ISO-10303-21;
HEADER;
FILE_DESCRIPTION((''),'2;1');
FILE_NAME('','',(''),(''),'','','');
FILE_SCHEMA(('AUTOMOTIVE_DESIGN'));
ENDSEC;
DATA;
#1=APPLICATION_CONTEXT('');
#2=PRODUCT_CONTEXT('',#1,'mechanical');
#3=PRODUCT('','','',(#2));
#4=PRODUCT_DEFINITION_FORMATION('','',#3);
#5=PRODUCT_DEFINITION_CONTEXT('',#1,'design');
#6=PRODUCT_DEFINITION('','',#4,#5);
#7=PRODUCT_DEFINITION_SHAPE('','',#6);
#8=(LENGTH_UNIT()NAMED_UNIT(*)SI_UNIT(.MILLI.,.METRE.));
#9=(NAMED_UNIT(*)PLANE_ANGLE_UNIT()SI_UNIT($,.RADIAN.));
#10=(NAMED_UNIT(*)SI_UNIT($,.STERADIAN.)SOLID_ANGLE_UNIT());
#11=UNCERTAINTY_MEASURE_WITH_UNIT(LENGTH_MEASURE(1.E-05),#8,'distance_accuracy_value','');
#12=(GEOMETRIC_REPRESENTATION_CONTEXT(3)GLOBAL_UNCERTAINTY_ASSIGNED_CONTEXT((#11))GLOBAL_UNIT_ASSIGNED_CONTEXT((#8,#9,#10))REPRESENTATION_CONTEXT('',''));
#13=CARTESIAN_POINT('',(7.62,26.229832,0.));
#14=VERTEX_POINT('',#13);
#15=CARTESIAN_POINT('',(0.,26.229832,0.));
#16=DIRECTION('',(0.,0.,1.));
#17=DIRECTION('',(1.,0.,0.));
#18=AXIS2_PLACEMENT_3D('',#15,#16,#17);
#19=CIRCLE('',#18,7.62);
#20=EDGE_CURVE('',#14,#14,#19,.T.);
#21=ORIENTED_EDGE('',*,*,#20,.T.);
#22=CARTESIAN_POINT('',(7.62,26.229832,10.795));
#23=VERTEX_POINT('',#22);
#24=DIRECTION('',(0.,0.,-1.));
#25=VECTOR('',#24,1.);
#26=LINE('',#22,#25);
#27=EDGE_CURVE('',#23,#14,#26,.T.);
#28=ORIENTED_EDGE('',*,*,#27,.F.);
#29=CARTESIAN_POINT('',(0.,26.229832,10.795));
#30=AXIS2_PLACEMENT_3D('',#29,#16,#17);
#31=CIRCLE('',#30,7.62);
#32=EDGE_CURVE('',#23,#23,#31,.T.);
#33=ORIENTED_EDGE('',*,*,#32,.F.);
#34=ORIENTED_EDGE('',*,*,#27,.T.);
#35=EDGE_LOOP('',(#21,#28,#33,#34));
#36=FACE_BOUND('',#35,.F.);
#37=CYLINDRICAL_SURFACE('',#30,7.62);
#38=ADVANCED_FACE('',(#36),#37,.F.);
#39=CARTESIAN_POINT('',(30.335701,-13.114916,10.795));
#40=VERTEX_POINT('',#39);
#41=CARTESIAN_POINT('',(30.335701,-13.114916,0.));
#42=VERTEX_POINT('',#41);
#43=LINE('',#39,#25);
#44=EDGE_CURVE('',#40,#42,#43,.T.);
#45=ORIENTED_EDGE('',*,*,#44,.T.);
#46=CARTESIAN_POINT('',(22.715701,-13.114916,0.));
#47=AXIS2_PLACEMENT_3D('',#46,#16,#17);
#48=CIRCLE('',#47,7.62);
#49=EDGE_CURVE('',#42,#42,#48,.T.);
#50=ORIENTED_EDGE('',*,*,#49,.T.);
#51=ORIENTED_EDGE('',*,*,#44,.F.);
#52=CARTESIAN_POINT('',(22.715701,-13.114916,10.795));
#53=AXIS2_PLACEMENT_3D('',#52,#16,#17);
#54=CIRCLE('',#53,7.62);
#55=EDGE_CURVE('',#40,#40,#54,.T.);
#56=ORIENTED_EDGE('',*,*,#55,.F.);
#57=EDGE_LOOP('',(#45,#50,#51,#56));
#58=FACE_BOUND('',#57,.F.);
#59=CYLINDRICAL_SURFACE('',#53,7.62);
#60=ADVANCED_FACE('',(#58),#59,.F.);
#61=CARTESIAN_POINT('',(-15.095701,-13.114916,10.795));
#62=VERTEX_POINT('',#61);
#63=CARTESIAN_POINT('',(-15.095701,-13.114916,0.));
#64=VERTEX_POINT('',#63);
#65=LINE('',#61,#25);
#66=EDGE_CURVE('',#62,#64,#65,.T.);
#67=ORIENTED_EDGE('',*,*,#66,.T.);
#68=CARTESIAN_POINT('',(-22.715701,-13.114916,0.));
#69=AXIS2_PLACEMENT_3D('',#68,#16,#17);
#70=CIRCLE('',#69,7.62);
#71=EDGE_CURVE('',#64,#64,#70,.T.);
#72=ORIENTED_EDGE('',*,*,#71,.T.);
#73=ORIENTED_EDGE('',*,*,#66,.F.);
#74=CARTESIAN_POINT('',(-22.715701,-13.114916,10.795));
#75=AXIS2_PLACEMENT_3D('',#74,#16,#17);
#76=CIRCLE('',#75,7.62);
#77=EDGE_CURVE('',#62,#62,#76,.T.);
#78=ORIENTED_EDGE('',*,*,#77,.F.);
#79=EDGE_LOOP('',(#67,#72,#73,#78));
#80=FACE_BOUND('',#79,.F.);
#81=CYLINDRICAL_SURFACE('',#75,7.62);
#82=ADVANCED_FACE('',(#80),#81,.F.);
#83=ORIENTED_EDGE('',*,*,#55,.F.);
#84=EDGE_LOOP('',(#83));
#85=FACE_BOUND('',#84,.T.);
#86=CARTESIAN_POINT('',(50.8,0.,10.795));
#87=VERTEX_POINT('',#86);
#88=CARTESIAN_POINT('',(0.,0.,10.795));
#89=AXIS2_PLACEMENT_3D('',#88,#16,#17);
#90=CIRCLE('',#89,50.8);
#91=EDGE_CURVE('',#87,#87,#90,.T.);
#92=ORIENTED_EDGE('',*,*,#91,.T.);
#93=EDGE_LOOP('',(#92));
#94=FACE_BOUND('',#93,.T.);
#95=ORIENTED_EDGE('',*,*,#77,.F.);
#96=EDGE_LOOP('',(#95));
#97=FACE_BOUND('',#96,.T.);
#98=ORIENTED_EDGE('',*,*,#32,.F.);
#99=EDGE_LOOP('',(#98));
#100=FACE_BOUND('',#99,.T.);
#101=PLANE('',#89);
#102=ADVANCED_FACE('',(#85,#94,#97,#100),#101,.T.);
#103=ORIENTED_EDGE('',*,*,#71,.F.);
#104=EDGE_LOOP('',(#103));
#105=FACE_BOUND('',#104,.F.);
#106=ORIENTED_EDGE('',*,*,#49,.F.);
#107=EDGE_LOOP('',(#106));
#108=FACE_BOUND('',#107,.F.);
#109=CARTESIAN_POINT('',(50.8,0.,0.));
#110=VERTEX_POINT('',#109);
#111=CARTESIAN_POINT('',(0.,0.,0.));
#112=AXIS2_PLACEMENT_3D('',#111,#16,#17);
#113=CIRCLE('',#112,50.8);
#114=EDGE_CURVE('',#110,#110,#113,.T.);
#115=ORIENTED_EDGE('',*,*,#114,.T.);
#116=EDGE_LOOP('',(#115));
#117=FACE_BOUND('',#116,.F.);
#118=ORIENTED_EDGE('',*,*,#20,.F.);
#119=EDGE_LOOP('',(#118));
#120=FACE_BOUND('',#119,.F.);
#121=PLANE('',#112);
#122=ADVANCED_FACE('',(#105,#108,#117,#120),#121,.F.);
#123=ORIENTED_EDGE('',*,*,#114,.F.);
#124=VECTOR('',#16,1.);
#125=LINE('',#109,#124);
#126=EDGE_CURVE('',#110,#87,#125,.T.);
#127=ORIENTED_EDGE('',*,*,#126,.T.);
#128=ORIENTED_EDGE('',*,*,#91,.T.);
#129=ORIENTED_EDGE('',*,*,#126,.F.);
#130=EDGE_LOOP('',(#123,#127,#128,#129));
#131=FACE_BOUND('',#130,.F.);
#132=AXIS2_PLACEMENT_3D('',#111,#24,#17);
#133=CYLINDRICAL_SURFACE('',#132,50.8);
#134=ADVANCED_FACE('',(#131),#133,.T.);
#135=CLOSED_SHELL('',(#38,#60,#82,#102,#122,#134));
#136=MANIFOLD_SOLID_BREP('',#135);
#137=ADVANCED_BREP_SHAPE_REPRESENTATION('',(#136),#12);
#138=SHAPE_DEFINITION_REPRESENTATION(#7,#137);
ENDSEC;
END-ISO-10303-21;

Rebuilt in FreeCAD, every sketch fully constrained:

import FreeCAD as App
import Part
import Sketcher
Q = App.Units.Quantity

doc = App.newDocument("Part")
body = doc.addObject("PartDesign::Body", "Body")

# Sketch on XY plane
sketch1 = doc.addObject("Sketcher::SketchObject", "Sketch")
body.addObject(sketch1)
sketch1.AttachmentSupport = (doc.XY_Plane, [""])
sketch1.MapMode = "FlatFace"
sketch1.addGeometry(Part.Circle(App.Vector(0, 0, 0), App.Vector(0, 0, 1), 51), False)
sketch1.addConstraint(Sketcher.Constraint("Coincident", 0, 3, -1, 1))
sketch1.addConstraint(Sketcher.Constraint("Diameter", 0, Q("4 in")))
pad1 = doc.addObject("PartDesign::Pad", "Pad")
body.addObject(pad1)
pad1.Profile = sketch1
pad1.Length = Q("0.425 in")

# Sketch on XY plane
sketch2 = doc.addObject("Sketcher::SketchObject", "Sketch001")
body.addObject(sketch2)
sketch2.AttachmentSupport = (doc.XY_Plane, [""])
sketch2.MapMode = "FlatFace"
sketch2.AttachmentOffset = App.Placement(App.Vector(0, 0, 0.425 * 25.4), App.Rotation())
sketch2.addGeometry(Part.Circle(App.Vector(-23, -13, 0), App.Vector(0, 0, 1), 8), False)
sketch2.addGeometry(Part.Circle(App.Vector(0, 26, 0), App.Vector(0, 0, 1), 8), False)
sketch2.addGeometry(Part.Circle(App.Vector(23, -13, 0), App.Vector(0, 0, 1), 8), False)
sketch2.addConstraint(Sketcher.Constraint("Equal", 0, 1))
sketch2.addConstraint(Sketcher.Constraint("Equal", 1, 2))
sketch2.addConstraint(Sketcher.Constraint("Symmetric", 0, 3, 2, 3, -2))
sketch2.addConstraint(Sketcher.Constraint("PointOnObject", 1, 3, -2))
sketch2.addConstraint(Sketcher.Constraint("Diameter", 0, Q("0.6 in")))
sketch2.addConstraint(Sketcher.Constraint("DistanceX", 0, 3, -1, 1, 22.715701))
sketch2.addConstraint(Sketcher.Constraint("DistanceY", -1, 1, 1, 3, 26.229832))
sketch2.addConstraint(Sketcher.Constraint("DistanceY", 0, 3, -1, 1, 13.114916))
pocket1 = doc.addObject("PartDesign::Pocket", "Pocket")
body.addObject(pocket1)
pocket1.Profile = sketch2
pocket1.Type = "ThroughAll"

doc.recompute()
